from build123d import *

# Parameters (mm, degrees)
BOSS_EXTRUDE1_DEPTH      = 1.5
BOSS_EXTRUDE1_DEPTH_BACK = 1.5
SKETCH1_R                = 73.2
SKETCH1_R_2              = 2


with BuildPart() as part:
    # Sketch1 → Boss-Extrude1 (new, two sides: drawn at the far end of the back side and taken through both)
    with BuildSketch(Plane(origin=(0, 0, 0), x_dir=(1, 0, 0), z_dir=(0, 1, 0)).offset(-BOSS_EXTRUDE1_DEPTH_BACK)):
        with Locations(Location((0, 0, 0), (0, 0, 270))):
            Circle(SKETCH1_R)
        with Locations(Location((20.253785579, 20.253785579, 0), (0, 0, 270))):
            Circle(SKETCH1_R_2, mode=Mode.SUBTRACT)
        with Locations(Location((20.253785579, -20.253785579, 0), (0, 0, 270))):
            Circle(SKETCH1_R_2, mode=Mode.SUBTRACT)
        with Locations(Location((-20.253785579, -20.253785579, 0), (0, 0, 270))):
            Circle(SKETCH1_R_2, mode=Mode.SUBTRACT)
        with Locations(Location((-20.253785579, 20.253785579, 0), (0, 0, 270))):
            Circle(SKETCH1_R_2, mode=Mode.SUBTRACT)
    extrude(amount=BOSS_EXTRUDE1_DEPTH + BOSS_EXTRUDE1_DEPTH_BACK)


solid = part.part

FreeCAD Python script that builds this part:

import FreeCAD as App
import Part
import Sketcher
Q = App.Units.Quantity

doc = App.newDocument("Part")
body = doc.addObject("PartDesign::Body", "Body")

sketch1 = doc.addObject("Sketcher::SketchObject", "Sketch")
body.addObject(sketch1)
sketch1.AttachmentSupport = (doc.XZ_Plane, [""])
sketch1.MapMode = "FlatFace"
sketch1.addGeometry([
    Part.Circle(App.Vector(0, 0, 0), App.Vector(0, 0, 1), 73.2),
    Part.Circle(App.Vector(-20.3, -20.3, 0), App.Vector(0, 0, 1), 2),
    Part.Circle(App.Vector(-20.3, 20.3, 0), App.Vector(0, 0, 1), 2),
    Part.Circle(App.Vector(20.3, -20.3, 0), App.Vector(0, 0, 1), 2),
    Part.Circle(App.Vector(20.3, 20.3, 0), App.Vector(0, 0, 1), 2),
], False)
sketch1.addConstraint([
    Sketcher.Constraint("Coincident", 0, 3, -1, 1),
    Sketcher.Constraint("Equal", 1, 2),
    Sketcher.Constraint("Equal", 2, 3),
    Sketcher.Constraint("Equal", 3, 4),
    Sketcher.Constraint("Symmetric", 2, 3, 3, 3, -1, 1),
    Sketcher.Constraint("Symmetric", 1, 3, 4, 3, -1, 1),
    Sketcher.Constraint("Symmetric", 1, 3, 3, 3, -2),
    Sketcher.Constraint("Diameter", 1, Q("4 mm")),
    Sketcher.Constraint("Diameter", 0, Q("146.4 mm")),
    Sketcher.Constraint("DistanceY", 1, 3, 2, 3, Q("40.507571 mm")),
    Sketcher.Constraint("DistanceX", 1, 3, 3, 3, Q("40.507571 mm")),
])
pad1 = doc.addObject("PartDesign::Pad", "Pad")
body.addObject(pad1)
pad1.Profile = sketch1
pad1.Type = "TwoLengths"
pad1.Length = 1.5
pad1.Length2 = 1.5
pad1.Reversed = True

doc.recompute()
